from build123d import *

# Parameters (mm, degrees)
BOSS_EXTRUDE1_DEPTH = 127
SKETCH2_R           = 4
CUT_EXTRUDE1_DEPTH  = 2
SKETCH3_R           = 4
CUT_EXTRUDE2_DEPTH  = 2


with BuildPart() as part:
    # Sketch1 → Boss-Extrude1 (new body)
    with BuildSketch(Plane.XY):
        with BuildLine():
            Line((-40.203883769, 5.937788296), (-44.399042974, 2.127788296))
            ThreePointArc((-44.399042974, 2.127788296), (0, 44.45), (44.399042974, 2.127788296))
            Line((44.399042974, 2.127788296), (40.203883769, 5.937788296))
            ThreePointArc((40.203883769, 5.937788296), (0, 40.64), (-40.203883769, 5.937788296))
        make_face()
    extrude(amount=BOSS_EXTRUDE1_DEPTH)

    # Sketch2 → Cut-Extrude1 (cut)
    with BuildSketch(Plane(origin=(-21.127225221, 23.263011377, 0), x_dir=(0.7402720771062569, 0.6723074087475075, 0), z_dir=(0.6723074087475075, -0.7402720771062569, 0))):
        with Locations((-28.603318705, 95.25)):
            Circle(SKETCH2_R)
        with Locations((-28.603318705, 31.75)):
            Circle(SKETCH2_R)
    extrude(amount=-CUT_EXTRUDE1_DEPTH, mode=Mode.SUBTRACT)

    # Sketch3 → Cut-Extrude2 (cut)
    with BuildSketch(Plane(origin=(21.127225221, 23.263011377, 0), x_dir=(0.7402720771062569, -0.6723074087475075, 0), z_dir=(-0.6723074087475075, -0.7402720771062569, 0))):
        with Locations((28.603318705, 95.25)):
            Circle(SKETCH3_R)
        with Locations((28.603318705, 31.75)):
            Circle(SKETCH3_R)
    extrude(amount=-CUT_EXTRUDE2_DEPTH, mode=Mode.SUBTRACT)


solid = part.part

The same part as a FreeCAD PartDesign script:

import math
import FreeCAD as App
import Part
import Sketcher

V = App.Vector
Q = App.Units.Quantity

doc = App.newDocument("Part")
params = doc.addObject("Spreadsheet::Sheet", "Params")
for row, (alias, value) in enumerate([
    ("sketch1_radius", "1.6 in"),
    ("sketch1_radius2", "1.75 in"),
    ("pad1_length", "5 in"),
    ("pocket1_length", "2 mm"),
    ("pocket2_length", "2 mm"),
], start=1):
    params.set(f"A{row}", alias)
    params.set(f"B{row}", "=" + value)
    params.setAlias(f"B{row}", alias)

body = doc.addObject("PartDesign::Body", "Body")

# Sketch on XY plane
sketch1 = doc.addObject("Sketcher::SketchObject", "Sketch")
body.addObject(sketch1)
sketch1.AttachmentSupport = (doc.XY_Plane, [""])
sketch1.MapMode = "FlatFace"
sketch1.addGeometry([
    Part.LineSegment(V(-44.399043, 2.127788, 0), V(-40.203884, 5.937788, 0)),
    Part.ArcOfCircle(Part.Circle(V(0, 0, 0), V(0, 0, 1), 40.64), math.radians(8.401388), math.radians(171.598612)),
    Part.LineSegment(V(40.203884, 5.937788, 0), V(44.399043, 2.127788, 0)),
    Part.ArcOfCircle(Part.Circle(V(0, 0, 0), V(0, 0, 1), 44.45), math.radians(2.743755), math.radians(177.256245)),
], False)
sketch1.addConstraint([
    Sketcher.Constraint("Coincident", 0, 2, 1, 2),
    Sketcher.Constraint("Coincident", 1, 1, 2, 1),
    Sketcher.Constraint("Coincident", 2, 2, 3, 1),
    Sketcher.Constraint("Coincident", 3, 2, 0, 1),
    Sketcher.Constraint("Coincident", 1, 3, -1, 1),
    Sketcher.Constraint("Coincident", 3, 3, -1, 1),
    Sketcher.Constraint("Horizontal", 0, 2, 1, 1),
    Sketcher.Constraint("Horizontal", 2, 2, 3, 2),
    Sketcher.Constraint("Radius", 1, Q("1.6 in")),
    Sketcher.Constraint("Radius", 3, Q("1.75 in")),
    Sketcher.Constraint("DistanceY", 2, 2, 1, 1, Q("0.15 in")),
    Sketcher.Constraint("Distance", 0, 5.66705),
])
sketch1.setExpression("Constraints[8]", "Params.sketch1_radius")
sketch1.setExpression("Constraints[9]", "Params.sketch1_radius2")
pad1 = doc.addObject("PartDesign::Pad", "Pad")
body.addObject(pad1)
pad1.Profile = sketch1
pad1.setExpression("Length", "Params.pad1_length")

# Sketch on an angled plane
sketch2 = doc.addObject("Sketcher::SketchObject", "Sketch001")
body.addObject(sketch2)
sketch2.Placement = App.Placement(V(-21.127225, 23.263011, 0), App.Rotation(V(0.740272077, 0.672307409, 0), V(0, 0, 1), V(0.672307409, -0.740272077, 0), "ZXY"))
sketch2.addGeometry([
    Part.Circle(V(-28.603319, 95.25, 0), V(0, 0, 1), 4),
    Part.Circle(V(-28.603319, 31.75, 0), V(0, 0, 1), 4),
], False)
sketch2.addConstraint([
    Sketcher.Constraint("Equal", 0, 1),
    Sketcher.Constraint("Vertical", 0, 3, 1, 3),
    Sketcher.Constraint("DistanceY", 1, 3, 0, 3, Q("2.5 in")),
    Sketcher.Constraint("Diameter", 0, 8.0),
    Sketcher.Constraint("DistanceY", -1, 1, 0, 3, Q("3.75 in")),
    Sketcher.Constraint("DistanceX", 0, 3, -1, 1, 28.603319),
])
pocket1 = doc.addObject("PartDesign::Pocket", "Pocket")
body.addObject(pocket1)
pocket1.Profile = sketch2
pocket1.setExpression("Length", "Params.pocket1_length")

# Sketch on an angled plane
sketch3 = doc.addObject("Sketcher::SketchObject", "Sketch002")
body.addObject(sketch3)
sketch3.Placement = App.Placement(V(21.127225, 23.263011, 0), App.Rotation(V(0.740272077, -0.672307409, 0), V(0, 0, 1), V(-0.672307409, -0.740272077, 0), "ZXY"))
sketch3.addGeometry([
    Part.Circle(V(28.603319, 95.25, 0), V(0, 0, 1), 4),
    Part.Circle(V(28.603319, 31.75, 0), V(0, 0, 1), 4),
], False)
sketch3.addConstraint([
    Sketcher.Constraint("Equal", 0, 1),
    Sketcher.Constraint("Vertical", 0, 3, 1, 3),
    Sketcher.Constraint("DistanceY", 1, 3, 0, 3, Q("2.5 in")),
    Sketcher.Constraint("Diameter", 0, 8.0),
    Sketcher.Constraint("DistanceY", -1, 1, 0, 3, Q("3.75 in")),
    Sketcher.Constraint("DistanceX", -1, 1, 0, 3, 28.603319),
])
pocket2 = doc.addObject("PartDesign::Pocket", "Pocket001")
body.addObject(pocket2)
pocket2.Profile = sketch3
pocket2.setExpression("Length", "Params.pocket2_length")

doc.recompute()
